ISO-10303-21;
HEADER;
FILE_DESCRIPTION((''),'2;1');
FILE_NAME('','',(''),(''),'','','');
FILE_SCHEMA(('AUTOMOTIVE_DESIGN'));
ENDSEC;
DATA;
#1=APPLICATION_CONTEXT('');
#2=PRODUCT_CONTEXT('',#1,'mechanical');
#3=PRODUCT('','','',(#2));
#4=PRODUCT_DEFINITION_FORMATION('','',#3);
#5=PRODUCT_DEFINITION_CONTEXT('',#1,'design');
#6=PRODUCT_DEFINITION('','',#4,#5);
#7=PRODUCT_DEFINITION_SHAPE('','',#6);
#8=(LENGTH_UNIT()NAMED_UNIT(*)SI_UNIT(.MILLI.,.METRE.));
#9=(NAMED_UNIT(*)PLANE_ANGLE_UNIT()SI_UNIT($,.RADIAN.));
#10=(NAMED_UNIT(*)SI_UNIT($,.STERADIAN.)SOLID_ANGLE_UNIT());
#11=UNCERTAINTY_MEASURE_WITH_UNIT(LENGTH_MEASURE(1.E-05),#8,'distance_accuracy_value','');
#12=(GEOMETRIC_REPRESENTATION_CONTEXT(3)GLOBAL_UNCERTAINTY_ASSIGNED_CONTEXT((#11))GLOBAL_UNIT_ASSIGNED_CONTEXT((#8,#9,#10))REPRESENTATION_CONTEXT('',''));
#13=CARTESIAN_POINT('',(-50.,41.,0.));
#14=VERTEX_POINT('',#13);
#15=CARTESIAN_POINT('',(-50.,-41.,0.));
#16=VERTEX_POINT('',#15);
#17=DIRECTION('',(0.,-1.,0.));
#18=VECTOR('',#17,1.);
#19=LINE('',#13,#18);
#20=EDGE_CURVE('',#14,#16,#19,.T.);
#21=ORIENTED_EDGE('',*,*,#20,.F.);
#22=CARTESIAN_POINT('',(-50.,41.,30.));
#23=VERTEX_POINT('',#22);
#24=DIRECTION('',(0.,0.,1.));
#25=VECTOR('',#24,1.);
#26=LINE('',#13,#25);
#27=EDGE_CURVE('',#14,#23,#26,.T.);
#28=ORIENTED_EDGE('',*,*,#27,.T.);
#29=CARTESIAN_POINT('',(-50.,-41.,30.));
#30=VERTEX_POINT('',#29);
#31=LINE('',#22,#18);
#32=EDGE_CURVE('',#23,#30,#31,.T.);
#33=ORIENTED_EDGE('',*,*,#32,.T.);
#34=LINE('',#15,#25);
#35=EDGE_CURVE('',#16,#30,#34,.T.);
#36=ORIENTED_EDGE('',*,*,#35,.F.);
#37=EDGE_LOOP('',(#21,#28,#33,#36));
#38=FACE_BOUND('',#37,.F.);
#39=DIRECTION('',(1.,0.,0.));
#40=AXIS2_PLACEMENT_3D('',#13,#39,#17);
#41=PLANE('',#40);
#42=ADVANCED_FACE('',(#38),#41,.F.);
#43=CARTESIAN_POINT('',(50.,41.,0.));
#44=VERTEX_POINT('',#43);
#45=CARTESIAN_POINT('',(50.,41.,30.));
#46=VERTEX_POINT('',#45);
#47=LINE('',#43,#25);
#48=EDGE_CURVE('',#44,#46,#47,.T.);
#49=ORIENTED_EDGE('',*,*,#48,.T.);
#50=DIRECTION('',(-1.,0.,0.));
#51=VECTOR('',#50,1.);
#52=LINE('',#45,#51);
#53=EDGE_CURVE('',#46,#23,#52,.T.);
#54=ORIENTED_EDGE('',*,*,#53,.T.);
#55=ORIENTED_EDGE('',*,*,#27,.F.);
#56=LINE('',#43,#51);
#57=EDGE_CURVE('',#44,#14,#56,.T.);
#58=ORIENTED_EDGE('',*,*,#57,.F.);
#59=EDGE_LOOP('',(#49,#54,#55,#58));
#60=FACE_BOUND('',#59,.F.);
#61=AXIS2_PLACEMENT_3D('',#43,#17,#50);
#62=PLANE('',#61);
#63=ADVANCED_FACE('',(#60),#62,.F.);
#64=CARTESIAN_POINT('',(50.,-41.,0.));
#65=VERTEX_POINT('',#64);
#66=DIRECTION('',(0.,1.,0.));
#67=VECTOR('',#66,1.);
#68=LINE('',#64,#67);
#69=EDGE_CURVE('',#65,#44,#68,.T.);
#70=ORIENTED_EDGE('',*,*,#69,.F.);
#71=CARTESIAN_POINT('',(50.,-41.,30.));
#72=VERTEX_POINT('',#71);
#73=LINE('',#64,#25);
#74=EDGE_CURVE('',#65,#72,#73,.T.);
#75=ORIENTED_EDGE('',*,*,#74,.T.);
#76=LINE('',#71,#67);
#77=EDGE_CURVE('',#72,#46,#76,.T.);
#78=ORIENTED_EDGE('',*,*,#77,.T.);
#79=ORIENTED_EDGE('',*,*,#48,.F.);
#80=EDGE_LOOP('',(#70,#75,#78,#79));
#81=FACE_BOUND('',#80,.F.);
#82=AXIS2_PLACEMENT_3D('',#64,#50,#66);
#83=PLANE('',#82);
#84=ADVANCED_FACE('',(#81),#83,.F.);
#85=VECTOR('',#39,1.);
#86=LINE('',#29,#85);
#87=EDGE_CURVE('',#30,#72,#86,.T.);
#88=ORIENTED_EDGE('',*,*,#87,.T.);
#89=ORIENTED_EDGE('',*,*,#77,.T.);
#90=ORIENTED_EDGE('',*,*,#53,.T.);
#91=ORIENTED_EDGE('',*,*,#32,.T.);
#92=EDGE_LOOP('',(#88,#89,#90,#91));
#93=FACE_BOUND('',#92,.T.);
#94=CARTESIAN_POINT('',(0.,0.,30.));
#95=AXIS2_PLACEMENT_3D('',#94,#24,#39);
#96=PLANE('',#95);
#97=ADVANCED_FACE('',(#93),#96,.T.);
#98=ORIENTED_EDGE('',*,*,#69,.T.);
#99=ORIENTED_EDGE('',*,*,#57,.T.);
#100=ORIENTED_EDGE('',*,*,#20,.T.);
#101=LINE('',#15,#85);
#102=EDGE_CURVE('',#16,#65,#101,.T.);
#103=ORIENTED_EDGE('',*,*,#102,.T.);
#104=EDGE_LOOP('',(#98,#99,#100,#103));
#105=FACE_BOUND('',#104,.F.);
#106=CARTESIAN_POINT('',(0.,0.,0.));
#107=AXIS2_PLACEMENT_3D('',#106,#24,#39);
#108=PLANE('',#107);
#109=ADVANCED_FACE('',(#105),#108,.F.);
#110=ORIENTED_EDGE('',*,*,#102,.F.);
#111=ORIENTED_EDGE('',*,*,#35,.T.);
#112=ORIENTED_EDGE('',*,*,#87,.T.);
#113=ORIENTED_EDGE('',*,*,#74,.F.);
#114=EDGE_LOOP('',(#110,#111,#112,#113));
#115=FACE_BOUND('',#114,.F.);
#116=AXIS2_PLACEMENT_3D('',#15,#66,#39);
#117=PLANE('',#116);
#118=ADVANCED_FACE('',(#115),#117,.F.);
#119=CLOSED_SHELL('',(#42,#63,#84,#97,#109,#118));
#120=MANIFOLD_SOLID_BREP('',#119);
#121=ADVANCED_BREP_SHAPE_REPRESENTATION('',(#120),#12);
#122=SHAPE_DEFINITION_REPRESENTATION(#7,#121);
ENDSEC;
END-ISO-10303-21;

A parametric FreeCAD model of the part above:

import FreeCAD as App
import Part
import Sketcher
Q = App.Units.Quantity


def add_polygon(sketch, points):
    """Adds a closed chain of lines whose ends are joined by coincident constraints."""
    first, n = sketch.GeometryCount, len(points)
    for a, b in zip(points, points[1:] + points[:1]):
        sketch.addGeometry(Part.LineSegment(App.Vector(*a, 0), App.Vector(*b, 0)), False)
    for i in range(n):
        sketch.addConstraint(Sketcher.Constraint("Coincident", first + i, 2, first + (i + 1) % n, 1))

doc = App.newDocument("Part")
body = doc.addObject("PartDesign::Body", "Body")

sketch1 = doc.addObject("Sketcher::SketchObject", "Sketch")
body.addObject(sketch1)
sketch1.AttachmentSupport = (doc.XY_Plane, [""])
sketch1.MapMode = "FlatFace"
add_polygon(sketch1, [(-50, 41), (-50, -41), (50, -41), (50, 41)])
sketch1.addConstraint([
    Sketcher.Constraint("Vertical", 0),
    Sketcher.Constraint("Horizontal", 1),
    Sketcher.Constraint("Vertical", 2),
    Sketcher.Constraint("Horizontal", 3),
    Sketcher.Constraint("Symmetric", 0, 2, 2, 2, -1, 1),
    Sketcher.Constraint("DistanceX", 1, 1, 1, 2, Q("100 mm")),
    Sketcher.Constraint("DistanceY", 0, 2, 0, 1, Q("82 mm")),
])
pad1 = doc.addObject("PartDesign::Pad", "Pad")
body.addObject(pad1)
pad1.Profile = sketch1
pad1.Length = 30

doc.recompute()
